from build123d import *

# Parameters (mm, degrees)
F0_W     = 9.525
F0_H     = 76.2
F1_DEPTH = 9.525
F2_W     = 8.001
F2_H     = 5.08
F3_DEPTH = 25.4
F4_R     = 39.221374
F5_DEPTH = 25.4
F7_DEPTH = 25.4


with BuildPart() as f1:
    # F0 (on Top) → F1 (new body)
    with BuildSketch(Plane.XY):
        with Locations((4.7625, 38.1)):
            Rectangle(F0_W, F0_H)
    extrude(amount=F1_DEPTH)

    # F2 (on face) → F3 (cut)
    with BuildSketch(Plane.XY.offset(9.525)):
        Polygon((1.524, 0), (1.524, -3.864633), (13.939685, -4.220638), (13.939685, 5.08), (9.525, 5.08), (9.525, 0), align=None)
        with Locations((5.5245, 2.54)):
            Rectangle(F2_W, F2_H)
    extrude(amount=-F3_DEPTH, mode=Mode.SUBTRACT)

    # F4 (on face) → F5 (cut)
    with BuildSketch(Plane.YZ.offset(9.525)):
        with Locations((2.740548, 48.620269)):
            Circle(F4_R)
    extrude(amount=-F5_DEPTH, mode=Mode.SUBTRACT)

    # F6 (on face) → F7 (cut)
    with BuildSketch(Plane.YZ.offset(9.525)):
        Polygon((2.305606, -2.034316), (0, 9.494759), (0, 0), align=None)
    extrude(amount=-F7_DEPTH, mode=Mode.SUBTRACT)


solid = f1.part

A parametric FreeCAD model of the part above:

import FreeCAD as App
import Part
import Sketcher

V = App.Vector
Q = App.Units.Quantity


def add_polygon(sketch, points):
    """Adds a closed chain of lines whose ends are joined by coincident constraints."""
    first, n = sketch.GeometryCount, len(points)
    for a, b in zip(points, points[1:] + points[:1]):
        sketch.addGeometry(Part.LineSegment(App.Vector(*a, 0), App.Vector(*b, 0)), False)
    for i in range(n):
        sketch.addConstraint(Sketcher.Constraint("Coincident", first + i, 2, first + (i + 1) % n, 1))

doc = App.newDocument("Part")
body = doc.addObject("PartDesign::Body", "Body")

sketch1 = doc.addObject("Sketcher::SketchObject", "Sketch")
body.addObject(sketch1)
sketch1.AttachmentSupport = (doc.XY_Plane, [""])
sketch1.MapMode = "FlatFace"
add_polygon(sketch1, [(0, 76.2), (0, 0), (9.525, 0), (9.525, 76.2)])
sketch1.addConstraint(Sketcher.Constraint("Vertical", 0))
sketch1.addConstraint(Sketcher.Constraint("Horizontal", 1))
sketch1.addConstraint(Sketcher.Constraint("Vertical", 2))
sketch1.addConstraint(Sketcher.Constraint("Horizontal", 3))
sketch1.addConstraint(Sketcher.Constraint("Coincident", 0, 2, -1, 1))
sketch1.addConstraint(Sketcher.Constraint("DistanceY", 0, 2, 0, 1, Q("3 in")))
sketch1.addConstraint(Sketcher.Constraint("DistanceX", 1, 1, 1, 2, Q("0.375 in")))
pad1 = doc.addObject("PartDesign::Pad", "Pad")
body.addObject(pad1)
pad1.Profile = sketch1
pad1.Length = Q("0.375 in")

sketch2 = doc.addObject("Sketcher::SketchObject", "Sketch001")
body.addObject(sketch2)
sketch2.AttachmentSupport = (doc.XY_Plane, [""])
sketch2.MapMode = "FlatFace"
sketch2.AttachmentOffset = App.Placement(V(0, 0, 0.375 * 25.4), App.Rotation())
add_polygon(sketch2, [(1.524, -3.864633), (13.939685, -4.220638), (13.939685, 5.08), (1.524, 5.08)])
sketch2.addConstraint(Sketcher.Constraint("Vertical", 1))
sketch2.addConstraint(Sketcher.Constraint("Horizontal", 2))
sketch2.addConstraint(Sketcher.Constraint("Vertical", 3))
sketch2.addConstraint(Sketcher.Constraint("DistanceY", -1, 1, 1, 2, Q("0.2 in")))
sketch2.addConstraint(Sketcher.Constraint("DistanceX", -1, 1, 2, 2, Q("0.06 in")))
sketch2.addConstraint(Sketcher.Constraint("DistanceX", 2, 2, 2, 1, Q("12.415685 mm")))
sketch2.addConstraint(Sketcher.Constraint("DistanceY", 1, 1, 1, 2, Q("9.300638 mm")))
sketch2.addConstraint(Sketcher.Constraint("DistanceY", 3, 2, 3, 1, Q("8.944633 mm")))
pocket1 = doc.addObject("PartDesign::Pocket", "Pocket")
body.addObject(pocket1)
pocket1.Profile = sketch2
pocket1.Length = Q("1 in")

sketch3 = doc.addObject("Sketcher::SketchObject", "Sketch002")
body.addObject(sketch3)
sketch3.AttachmentSupport = (doc.YZ_Plane, [""])
sketch3.MapMode = "FlatFace"
sketch3.AttachmentOffset = App.Placement(V(0, 0, 0.375 * 25.4), App.Rotation())
sketch3.addGeometry(Part.Circle(V(2.740548, 48.620269, 0), V(0, 0, 1), 39.221374), False)
sketch3.addConstraint(Sketcher.Constraint("Diameter", 0, Q("78.442748 mm")))
sketch3.addConstraint(Sketcher.Constraint("DistanceX", -1, 1, 0, 3, Q("2.740548 mm")))
sketch3.addConstraint(Sketcher.Constraint("DistanceY", -1, 1, 0, 3, Q("48.620269 mm")))
pocket2 = doc.addObject("PartDesign::Pocket", "Pocket001")
body.addObject(pocket2)
pocket2.Profile = sketch3
pocket2.Length = Q("1 in")

sketch4 = doc.addObject("Sketcher::SketchObject", "Sketch003")
body.addObject(sketch4)
sketch4.AttachmentSupport = (doc.YZ_Plane, [""])
sketch4.MapMode = "FlatFace"
sketch4.AttachmentOffset = App.Placement(V(0, 0, 0.375 * 25.4), App.Rotation())
add_polygon(sketch4, [(2.305606, -2.034316), (0, 9.494759), (0, 0)])
sketch4.addConstraint(Sketcher.Constraint("Vertical", 1))
sketch4.addConstraint(Sketcher.Constraint("Coincident", 1, 2, -1, 1))
sketch4.addConstraint(Sketcher.Constraint("DistanceY", 1, 2, 1, 1, Q("9.494759 mm")))
sketch4.addConstraint(Sketcher.Constraint("Distance", 2, Q("3.074778 mm")))
sketch4.addConstraint(Sketcher.Constraint("Distance", 0, Q("11.757355 mm")))
pocket3 = doc.addObject("PartDesign::Pocket", "Pocket002")
body.addObject(pocket3)
pocket3.Profile = sketch4
pocket3.Length = Q("1 in")

doc.recompute()
